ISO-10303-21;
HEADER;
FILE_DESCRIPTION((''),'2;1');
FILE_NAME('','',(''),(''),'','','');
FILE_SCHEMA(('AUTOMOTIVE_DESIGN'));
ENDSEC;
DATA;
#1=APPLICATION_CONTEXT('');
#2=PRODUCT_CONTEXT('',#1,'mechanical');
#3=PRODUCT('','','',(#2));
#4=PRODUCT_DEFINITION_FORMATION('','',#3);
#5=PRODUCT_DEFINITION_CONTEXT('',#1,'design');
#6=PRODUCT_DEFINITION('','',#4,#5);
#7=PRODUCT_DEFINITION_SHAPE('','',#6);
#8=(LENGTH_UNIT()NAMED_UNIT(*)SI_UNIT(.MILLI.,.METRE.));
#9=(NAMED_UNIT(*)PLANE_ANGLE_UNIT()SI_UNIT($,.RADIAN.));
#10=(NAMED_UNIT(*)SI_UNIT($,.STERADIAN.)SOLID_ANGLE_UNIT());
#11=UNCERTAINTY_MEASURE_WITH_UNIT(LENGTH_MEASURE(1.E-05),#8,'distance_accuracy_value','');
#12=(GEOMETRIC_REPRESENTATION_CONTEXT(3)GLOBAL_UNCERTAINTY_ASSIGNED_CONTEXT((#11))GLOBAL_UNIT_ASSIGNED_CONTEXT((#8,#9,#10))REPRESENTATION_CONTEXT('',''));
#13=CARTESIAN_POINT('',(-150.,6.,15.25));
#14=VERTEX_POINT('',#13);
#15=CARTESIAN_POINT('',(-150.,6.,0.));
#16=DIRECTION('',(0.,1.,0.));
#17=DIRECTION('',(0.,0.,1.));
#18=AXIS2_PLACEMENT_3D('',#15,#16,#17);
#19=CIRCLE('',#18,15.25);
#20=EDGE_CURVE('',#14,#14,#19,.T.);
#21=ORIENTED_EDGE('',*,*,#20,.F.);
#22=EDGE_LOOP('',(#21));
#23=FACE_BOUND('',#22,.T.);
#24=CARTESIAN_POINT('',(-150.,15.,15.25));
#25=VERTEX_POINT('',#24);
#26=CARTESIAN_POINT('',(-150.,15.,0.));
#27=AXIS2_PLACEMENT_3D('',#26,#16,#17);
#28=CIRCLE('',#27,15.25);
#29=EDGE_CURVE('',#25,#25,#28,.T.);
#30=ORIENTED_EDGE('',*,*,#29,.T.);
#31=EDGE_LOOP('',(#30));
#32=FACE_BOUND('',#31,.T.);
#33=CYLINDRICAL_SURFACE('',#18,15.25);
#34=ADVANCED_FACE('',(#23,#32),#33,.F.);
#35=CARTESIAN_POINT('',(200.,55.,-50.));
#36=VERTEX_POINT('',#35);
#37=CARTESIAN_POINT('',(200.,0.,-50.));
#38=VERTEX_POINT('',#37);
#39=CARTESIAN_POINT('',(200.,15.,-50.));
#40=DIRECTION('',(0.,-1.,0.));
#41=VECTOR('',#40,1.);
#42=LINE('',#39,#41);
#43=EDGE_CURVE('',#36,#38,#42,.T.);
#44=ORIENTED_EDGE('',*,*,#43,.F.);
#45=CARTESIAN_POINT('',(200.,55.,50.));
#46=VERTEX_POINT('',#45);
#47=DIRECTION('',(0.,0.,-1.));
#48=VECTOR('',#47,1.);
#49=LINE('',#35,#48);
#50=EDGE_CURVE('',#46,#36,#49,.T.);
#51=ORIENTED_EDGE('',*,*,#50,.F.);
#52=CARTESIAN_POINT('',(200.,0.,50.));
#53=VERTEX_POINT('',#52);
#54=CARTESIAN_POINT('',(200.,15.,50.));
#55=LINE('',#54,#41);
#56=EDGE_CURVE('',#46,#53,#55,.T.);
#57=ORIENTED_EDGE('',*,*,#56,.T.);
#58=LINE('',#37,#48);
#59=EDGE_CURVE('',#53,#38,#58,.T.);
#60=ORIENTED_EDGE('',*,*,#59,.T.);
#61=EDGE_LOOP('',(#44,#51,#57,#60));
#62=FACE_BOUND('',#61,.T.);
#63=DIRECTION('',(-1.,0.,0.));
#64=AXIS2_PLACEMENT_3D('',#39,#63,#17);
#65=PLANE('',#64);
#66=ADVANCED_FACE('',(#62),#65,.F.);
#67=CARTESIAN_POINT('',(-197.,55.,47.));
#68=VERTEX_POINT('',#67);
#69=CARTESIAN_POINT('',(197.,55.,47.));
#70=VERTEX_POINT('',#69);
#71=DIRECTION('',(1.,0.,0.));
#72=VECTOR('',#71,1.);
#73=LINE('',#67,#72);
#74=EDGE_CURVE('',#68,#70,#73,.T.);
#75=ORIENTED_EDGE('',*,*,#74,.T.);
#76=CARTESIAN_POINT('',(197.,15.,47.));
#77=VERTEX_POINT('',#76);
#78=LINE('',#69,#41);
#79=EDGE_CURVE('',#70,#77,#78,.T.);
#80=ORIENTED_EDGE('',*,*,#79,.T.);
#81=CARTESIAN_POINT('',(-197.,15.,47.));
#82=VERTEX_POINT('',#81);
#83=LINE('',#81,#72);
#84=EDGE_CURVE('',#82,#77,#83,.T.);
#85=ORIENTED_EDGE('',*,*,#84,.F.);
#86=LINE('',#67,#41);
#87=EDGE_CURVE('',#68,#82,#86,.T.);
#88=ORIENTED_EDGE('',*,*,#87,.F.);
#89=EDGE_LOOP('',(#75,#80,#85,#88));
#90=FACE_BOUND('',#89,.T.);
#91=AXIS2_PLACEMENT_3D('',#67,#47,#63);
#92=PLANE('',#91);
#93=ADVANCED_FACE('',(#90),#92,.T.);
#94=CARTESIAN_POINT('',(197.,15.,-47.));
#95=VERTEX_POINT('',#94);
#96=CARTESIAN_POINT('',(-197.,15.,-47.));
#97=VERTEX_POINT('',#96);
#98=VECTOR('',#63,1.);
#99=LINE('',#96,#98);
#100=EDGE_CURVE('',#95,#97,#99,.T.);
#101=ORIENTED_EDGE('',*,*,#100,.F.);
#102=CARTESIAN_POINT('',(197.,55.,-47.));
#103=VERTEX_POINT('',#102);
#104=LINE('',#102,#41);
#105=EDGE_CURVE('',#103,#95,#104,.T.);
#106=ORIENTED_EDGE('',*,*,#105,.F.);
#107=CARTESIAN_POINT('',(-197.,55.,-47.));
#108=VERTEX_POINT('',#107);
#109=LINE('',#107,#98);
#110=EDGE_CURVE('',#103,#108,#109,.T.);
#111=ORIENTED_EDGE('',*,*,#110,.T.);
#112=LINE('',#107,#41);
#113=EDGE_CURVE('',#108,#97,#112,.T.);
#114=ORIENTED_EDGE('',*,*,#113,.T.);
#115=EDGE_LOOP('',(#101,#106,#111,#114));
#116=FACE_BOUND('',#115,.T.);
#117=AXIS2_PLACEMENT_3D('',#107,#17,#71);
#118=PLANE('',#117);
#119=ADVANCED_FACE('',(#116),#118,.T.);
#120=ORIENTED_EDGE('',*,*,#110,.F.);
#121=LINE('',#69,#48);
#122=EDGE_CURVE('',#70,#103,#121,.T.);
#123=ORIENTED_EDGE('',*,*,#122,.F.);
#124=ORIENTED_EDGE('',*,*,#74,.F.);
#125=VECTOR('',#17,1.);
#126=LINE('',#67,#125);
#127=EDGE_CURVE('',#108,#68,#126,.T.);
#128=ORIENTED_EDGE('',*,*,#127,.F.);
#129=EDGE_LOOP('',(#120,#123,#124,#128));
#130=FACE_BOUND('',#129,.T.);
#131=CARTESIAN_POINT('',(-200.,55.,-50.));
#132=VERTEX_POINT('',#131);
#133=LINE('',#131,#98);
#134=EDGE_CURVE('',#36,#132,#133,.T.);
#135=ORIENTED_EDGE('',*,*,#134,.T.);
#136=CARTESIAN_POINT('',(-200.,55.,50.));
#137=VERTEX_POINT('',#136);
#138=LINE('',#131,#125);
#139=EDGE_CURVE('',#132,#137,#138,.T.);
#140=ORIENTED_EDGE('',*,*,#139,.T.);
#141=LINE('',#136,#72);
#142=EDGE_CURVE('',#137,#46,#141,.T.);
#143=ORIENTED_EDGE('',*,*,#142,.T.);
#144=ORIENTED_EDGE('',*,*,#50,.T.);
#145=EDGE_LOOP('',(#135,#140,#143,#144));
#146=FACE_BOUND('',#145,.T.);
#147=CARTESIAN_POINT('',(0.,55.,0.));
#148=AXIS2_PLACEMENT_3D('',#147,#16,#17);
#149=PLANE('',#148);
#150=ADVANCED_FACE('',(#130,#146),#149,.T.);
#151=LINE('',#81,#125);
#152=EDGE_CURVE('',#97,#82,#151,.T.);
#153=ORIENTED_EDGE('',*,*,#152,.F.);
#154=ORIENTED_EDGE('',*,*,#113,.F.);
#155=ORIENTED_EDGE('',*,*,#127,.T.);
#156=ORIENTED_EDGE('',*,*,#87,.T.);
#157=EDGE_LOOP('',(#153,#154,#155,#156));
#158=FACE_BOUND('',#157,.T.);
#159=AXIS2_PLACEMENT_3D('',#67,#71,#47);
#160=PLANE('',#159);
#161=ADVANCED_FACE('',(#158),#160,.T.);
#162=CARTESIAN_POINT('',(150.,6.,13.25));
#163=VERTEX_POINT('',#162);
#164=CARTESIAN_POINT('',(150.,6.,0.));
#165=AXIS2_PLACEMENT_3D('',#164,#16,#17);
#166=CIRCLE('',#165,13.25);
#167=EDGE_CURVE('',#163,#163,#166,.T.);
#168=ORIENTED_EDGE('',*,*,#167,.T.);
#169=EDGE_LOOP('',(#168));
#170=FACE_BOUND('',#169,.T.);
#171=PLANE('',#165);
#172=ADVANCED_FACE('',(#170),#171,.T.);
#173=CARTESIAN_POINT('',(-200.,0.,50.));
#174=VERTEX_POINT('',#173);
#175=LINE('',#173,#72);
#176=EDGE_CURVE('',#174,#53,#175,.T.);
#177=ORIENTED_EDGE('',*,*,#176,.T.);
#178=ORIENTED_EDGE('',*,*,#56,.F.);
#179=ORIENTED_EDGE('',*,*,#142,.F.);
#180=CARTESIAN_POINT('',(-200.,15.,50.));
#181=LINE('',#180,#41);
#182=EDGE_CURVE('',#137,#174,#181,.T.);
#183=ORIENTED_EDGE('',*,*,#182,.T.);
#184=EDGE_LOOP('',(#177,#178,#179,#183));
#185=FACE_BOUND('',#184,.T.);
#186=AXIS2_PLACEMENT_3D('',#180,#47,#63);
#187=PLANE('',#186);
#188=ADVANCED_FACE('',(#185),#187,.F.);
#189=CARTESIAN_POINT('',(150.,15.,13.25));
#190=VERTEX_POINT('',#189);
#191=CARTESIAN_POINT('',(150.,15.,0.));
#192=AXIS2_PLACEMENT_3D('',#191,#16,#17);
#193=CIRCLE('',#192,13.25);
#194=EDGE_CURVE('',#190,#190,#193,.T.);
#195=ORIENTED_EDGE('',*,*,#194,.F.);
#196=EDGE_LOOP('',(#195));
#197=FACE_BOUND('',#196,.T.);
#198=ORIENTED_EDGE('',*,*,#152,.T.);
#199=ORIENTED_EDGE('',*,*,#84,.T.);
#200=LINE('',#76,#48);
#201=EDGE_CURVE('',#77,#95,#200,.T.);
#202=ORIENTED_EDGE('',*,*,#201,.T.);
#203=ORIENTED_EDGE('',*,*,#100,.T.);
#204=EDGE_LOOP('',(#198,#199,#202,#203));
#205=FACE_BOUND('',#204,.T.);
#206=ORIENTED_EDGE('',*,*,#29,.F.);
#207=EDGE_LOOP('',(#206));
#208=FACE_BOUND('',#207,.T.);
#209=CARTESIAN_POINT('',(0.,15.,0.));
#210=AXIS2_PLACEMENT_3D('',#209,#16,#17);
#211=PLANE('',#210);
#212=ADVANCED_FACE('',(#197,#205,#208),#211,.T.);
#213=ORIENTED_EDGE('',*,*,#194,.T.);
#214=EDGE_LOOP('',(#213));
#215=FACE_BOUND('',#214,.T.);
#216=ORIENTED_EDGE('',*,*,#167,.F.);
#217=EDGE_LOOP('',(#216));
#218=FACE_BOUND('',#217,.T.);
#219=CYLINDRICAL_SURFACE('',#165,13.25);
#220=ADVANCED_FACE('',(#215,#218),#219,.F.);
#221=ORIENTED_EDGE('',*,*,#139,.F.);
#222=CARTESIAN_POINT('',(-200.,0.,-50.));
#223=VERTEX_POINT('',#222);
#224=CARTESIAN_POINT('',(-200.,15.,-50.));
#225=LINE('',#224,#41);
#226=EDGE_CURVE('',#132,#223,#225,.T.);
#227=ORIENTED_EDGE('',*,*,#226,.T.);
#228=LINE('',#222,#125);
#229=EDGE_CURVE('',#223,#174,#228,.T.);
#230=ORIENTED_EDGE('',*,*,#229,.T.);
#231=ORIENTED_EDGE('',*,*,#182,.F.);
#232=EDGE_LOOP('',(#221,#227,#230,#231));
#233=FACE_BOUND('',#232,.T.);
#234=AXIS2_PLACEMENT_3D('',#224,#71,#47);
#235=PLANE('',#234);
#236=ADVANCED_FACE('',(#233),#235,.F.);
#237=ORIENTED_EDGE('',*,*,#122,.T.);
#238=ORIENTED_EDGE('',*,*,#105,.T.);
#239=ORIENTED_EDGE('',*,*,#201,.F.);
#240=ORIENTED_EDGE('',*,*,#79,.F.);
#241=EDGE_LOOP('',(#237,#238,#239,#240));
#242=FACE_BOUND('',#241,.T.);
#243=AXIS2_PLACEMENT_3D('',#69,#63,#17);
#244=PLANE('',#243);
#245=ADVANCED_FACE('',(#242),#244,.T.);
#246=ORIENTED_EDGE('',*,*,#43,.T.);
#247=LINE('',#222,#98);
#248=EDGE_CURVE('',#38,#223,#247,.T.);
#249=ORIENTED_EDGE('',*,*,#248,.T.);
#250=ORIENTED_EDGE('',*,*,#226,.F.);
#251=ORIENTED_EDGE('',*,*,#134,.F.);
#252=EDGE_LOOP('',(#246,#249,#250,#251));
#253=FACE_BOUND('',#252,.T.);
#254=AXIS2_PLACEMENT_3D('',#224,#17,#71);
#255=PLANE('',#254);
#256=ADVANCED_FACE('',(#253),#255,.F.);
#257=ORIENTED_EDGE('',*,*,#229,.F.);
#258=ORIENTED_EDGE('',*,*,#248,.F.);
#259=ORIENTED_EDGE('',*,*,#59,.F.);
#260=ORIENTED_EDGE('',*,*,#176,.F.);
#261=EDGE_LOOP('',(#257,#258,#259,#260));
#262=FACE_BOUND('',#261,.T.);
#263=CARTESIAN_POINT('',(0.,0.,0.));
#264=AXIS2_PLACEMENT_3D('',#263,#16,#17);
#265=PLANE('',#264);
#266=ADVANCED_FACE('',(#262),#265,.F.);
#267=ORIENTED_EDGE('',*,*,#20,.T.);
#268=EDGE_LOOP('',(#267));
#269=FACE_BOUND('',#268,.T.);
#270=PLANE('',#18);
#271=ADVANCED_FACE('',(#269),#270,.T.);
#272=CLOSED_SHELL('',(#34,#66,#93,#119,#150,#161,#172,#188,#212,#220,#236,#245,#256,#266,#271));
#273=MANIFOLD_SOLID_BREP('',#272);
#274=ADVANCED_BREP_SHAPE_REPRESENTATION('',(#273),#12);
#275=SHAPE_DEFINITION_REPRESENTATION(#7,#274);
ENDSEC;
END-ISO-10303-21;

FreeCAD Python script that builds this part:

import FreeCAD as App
import Part
import Sketcher
from FreeCAD import Vector

doc = App.newDocument("Part")
body = doc.addObject("PartDesign::Body", "Body")

sketch1 = body.newObject("Sketcher::SketchObject", "Sketch")
sketch1.AttachmentSupport = (doc.getObject("XZ_Plane"), [""])
sketch1.MapMode = "FlatFace"
sketch1.addGeometry([
    Part.LineSegment(Vector(-200, -50, 0), Vector(-200, 50, 0)),
    Part.LineSegment(Vector(-200, 50, 0), Vector(200, 50, 0)),
    Part.LineSegment(Vector(200, 50, 0), Vector(200, -50, 0)),
    Part.LineSegment(Vector(200, -50, 0), Vector(-200, -50, 0)),
], False)
sketch1.addConstraint([
    Sketcher.Constraint("Coincident", 0, 2, 1, 1),
    Sketcher.Constraint("Coincident", 1, 2, 2, 1),
    Sketcher.Constraint("Coincident", 2, 2, 3, 1),
    Sketcher.Constraint("Coincident", 3, 2, 0, 1),
    Sketcher.Constraint("Vertical", 0),
    Sketcher.Constraint("Horizontal", 1),
    Sketcher.Constraint("Vertical", 2),
    Sketcher.Constraint("Horizontal", 3),
    Sketcher.Constraint("Symmetric", 0, 2, 2, 2, -1, 1),
    Sketcher.Constraint("DistanceX", 1, 1, 1, 2, 400.0),
    Sketcher.Constraint("DistanceY", 0, 1, 0, 2, 100.0),
])
pad1 = body.newObject("PartDesign::Pad", "Pad")
pad1.Profile = sketch1
pad1.Length = 15
pad1.Reversed = True

sketch2 = body.newObject("Sketcher::SketchObject", "Sketch001")
sketch2.AttachmentSupport = (doc.getObject("XZ_Plane"), [""])
sketch2.MapMode = "FlatFace"
sketch2.AttachmentOffset = App.Placement(Vector(0, 0, -15), App.Rotation())
sketch2.addGeometry([
    Part.Circle(Vector(-150, 0, 0), Vector(0, 0, 1), 15),
    Part.Circle(Vector(150, 0, 0), Vector(0, 0, 1), 13),
], False)
sketch2.addConstraint([
    Sketcher.Constraint("Symmetric", 0, 3, 1, 3, -1, 1),
    Sketcher.Constraint("PointOnObject", 0, 3, -1),
    Sketcher.Constraint("Diameter", 0, 30.5),
    Sketcher.Constraint("Diameter", 1, 26.5),
    Sketcher.Constraint("DistanceX", 0, 3, -1, 1, 150.0),
])
pocket1 = body.newObject("PartDesign::Pocket", "Pocket")
pocket1.Profile = sketch2
pocket1.Length = 9
pocket1.Reversed = True

sketch3 = body.newObject("Sketcher::SketchObject", "Sketch002")
sketch3.AttachmentSupport = (doc.getObject("XZ_Plane"), [""])
sketch3.MapMode = "FlatFace"
sketch3.AttachmentOffset = App.Placement(Vector(0, 0, -15), App.Rotation())
sketch3.addGeometry([
    Part.LineSegment(Vector(-200, -50, 0), Vector(-200, 50, 0)),
    Part.LineSegment(Vector(-200, 50, 0), Vector(200, 50, 0)),
    Part.LineSegment(Vector(200, 50, 0), Vector(200, -50, 0)),
    Part.LineSegment(Vector(200, -50, 0), Vector(-200, -50, 0)),
    Part.LineSegment(Vector(197, 47, 0), Vector(-197, 47, 0)),
    Part.LineSegment(Vector(-197, 47, 0), Vector(-197, -47, 0)),
    Part.LineSegment(Vector(-197, -47, 0), Vector(197, -47, 0)),
    Part.LineSegment(Vector(197, -47, 0), Vector(197, 47, 0)),
], False)
sketch3.addConstraint([
    Sketcher.Constraint("Coincident", 0, 2, 1, 1),
    Sketcher.Constraint("Coincident", 1, 2, 2, 1),
    Sketcher.Constraint("Coincident", 2, 2, 3, 1),
    Sketcher.Constraint("Coincident", 3, 2, 0, 1),
    Sketcher.Constraint("Coincident", 4, 2, 5, 1),
    Sketcher.Constraint("Coincident", 5, 2, 6, 1),
    Sketcher.Constraint("Coincident", 6, 2, 7, 1),
    Sketcher.Constraint("Coincident", 7, 2, 4, 1),
    Sketcher.Constraint("Vertical", 0),
    Sketcher.Constraint("Horizontal", 1),
    Sketcher.Constraint("Vertical", 2),
    Sketcher.Constraint("Horizontal", 3),
    Sketcher.Constraint("Horizontal", 4),
    Sketcher.Constraint("Vertical", 5),
    Sketcher.Constraint("Horizontal", 6),
    Sketcher.Constraint("Vertical", 7),
    Sketcher.Constraint("Symmetric", 0, 2, 2, 2, -1, 1),
    Sketcher.Constraint("Symmetric", 4, 2, 6, 2, -1, 1),
    Sketcher.Constraint("DistanceX", 1, 1, 1, 2, 400.0),
    Sketcher.Constraint("DistanceX", 4, 2, 4, 1, 394.0),
    Sketcher.Constraint("DistanceY", 0, 1, 0, 2, 100.0),
    Sketcher.Constraint("DistanceY", 5, 2, 5, 1, 94.0),
])
pad2 = body.newObject("PartDesign::Pad", "Pad001")
pad2.Profile = sketch3
pad2.Length = 40
pad2.Reversed = True

doc.recompute()
